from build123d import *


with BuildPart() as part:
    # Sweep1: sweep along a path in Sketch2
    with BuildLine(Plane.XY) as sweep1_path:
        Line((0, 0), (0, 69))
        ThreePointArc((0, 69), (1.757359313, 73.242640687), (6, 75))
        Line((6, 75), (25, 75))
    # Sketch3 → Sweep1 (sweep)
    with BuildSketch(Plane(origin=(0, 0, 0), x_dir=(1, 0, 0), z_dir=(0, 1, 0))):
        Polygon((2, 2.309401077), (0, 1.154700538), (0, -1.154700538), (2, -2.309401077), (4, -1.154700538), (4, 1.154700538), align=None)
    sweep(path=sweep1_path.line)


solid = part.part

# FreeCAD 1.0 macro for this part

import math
import FreeCAD as App
import Part
import Sketcher

V = App.Vector
Q = App.Units.Quantity

doc = App.newDocument("Part")
body = doc.addObject("PartDesign::Body", "Body")

sketch1 = body.newObject("Sketcher::SketchObject", "Sketch")
sketch1.AttachmentSupport = (doc.getObject("XZ_Plane"), [""])
sketch1.MapMode = "FlatFace"
sketch1.addGeometry([
    Part.LineSegment(V(2, -2.309401, 0), V(0, -1.154701, 0)),
    Part.LineSegment(V(0, -1.154701, 0), V(0, 1.154701, 0)),
    Part.LineSegment(V(0, 1.154701, 0), V(2, 2.309401, 0)),
    Part.LineSegment(V(2, 2.309401, 0), V(4, 1.154701, 0)),
    Part.LineSegment(V(4, 1.154701, 0), V(4, -1.154701, 0)),
    Part.LineSegment(V(4, -1.154701, 0), V(2, -2.309401, 0)),
], False)
sketch1.addConstraint([
    Sketcher.Constraint("Coincident", 0, 2, 1, 1),
    Sketcher.Constraint("Coincident", 1, 2, 2, 1),
    Sketcher.Constraint("Coincident", 2, 2, 3, 1),
    Sketcher.Constraint("Coincident", 3, 2, 4, 1),
    Sketcher.Constraint("Coincident", 4, 2, 5, 1),
    Sketcher.Constraint("Coincident", 5, 2, 0, 1),
    Sketcher.Constraint("Vertical", 1),
    Sketcher.Constraint("Vertical", 4),
    Sketcher.Constraint("Symmetric", 0, 2, 1, 2, -1, 1),
    Sketcher.Constraint("Symmetric", 2, 2, 5, 2, -1),
    Sketcher.Constraint("Parallel", 0, 3),
    Sketcher.Constraint("Parallel", 2, 5),
    Sketcher.Constraint("Horizontal", 1, 2, 3, 2),
    Sketcher.Constraint("Angle", 0, Q("150 deg")),
    Sketcher.Constraint("DistanceX", -1, 1, 2, 2, Q("2 mm")),
    Sketcher.Constraint("DistanceY", 1, 1, 1, 2, Q("2.309401 mm")),
])

sketch2 = body.newObject("Sketcher::SketchObject", "Sketch001")
sketch2.AttachmentSupport = (doc.getObject("XY_Plane"), [""])
sketch2.MapMode = "FlatFace"
sketch2.addGeometry([
    Part.LineSegment(V(0, 0, 0), V(0, 69, 0)),
    Part.ArcOfCircle(Part.Circle(V(6, 69, 0), V(0, 0, 1), 6), math.radians(90), math.radians(180)),
    Part.LineSegment(V(6, 75, 0), V(25, 75, 0)),
], False)
sketch2.addConstraint([
    Sketcher.Constraint("Tangent", 0, 2, 1, 2),
    Sketcher.Constraint("Tangent", 1, 1, 2, 1),
    Sketcher.Constraint("Vertical", 0),
    Sketcher.Constraint("Horizontal", 2),
    Sketcher.Constraint("Coincident", 0, 1, -1, 1),
    Sketcher.Constraint("Radius", 1, Q("6 mm")),
    Sketcher.Constraint("DistanceX", 2, 1, 2, 2, Q("19 mm")),
    Sketcher.Constraint("DistanceY", 0, 1, 0, 2, Q("69 mm")),
])
doc.recompute()

additivepipe = body.newObject("PartDesign::AdditivePipe", "AdditivePipe")
additivepipe.Profile = sketch1
additivepipe.Spine = (sketch2, ["Edge1", "Edge2", "Edge3"])

doc.recompute()
